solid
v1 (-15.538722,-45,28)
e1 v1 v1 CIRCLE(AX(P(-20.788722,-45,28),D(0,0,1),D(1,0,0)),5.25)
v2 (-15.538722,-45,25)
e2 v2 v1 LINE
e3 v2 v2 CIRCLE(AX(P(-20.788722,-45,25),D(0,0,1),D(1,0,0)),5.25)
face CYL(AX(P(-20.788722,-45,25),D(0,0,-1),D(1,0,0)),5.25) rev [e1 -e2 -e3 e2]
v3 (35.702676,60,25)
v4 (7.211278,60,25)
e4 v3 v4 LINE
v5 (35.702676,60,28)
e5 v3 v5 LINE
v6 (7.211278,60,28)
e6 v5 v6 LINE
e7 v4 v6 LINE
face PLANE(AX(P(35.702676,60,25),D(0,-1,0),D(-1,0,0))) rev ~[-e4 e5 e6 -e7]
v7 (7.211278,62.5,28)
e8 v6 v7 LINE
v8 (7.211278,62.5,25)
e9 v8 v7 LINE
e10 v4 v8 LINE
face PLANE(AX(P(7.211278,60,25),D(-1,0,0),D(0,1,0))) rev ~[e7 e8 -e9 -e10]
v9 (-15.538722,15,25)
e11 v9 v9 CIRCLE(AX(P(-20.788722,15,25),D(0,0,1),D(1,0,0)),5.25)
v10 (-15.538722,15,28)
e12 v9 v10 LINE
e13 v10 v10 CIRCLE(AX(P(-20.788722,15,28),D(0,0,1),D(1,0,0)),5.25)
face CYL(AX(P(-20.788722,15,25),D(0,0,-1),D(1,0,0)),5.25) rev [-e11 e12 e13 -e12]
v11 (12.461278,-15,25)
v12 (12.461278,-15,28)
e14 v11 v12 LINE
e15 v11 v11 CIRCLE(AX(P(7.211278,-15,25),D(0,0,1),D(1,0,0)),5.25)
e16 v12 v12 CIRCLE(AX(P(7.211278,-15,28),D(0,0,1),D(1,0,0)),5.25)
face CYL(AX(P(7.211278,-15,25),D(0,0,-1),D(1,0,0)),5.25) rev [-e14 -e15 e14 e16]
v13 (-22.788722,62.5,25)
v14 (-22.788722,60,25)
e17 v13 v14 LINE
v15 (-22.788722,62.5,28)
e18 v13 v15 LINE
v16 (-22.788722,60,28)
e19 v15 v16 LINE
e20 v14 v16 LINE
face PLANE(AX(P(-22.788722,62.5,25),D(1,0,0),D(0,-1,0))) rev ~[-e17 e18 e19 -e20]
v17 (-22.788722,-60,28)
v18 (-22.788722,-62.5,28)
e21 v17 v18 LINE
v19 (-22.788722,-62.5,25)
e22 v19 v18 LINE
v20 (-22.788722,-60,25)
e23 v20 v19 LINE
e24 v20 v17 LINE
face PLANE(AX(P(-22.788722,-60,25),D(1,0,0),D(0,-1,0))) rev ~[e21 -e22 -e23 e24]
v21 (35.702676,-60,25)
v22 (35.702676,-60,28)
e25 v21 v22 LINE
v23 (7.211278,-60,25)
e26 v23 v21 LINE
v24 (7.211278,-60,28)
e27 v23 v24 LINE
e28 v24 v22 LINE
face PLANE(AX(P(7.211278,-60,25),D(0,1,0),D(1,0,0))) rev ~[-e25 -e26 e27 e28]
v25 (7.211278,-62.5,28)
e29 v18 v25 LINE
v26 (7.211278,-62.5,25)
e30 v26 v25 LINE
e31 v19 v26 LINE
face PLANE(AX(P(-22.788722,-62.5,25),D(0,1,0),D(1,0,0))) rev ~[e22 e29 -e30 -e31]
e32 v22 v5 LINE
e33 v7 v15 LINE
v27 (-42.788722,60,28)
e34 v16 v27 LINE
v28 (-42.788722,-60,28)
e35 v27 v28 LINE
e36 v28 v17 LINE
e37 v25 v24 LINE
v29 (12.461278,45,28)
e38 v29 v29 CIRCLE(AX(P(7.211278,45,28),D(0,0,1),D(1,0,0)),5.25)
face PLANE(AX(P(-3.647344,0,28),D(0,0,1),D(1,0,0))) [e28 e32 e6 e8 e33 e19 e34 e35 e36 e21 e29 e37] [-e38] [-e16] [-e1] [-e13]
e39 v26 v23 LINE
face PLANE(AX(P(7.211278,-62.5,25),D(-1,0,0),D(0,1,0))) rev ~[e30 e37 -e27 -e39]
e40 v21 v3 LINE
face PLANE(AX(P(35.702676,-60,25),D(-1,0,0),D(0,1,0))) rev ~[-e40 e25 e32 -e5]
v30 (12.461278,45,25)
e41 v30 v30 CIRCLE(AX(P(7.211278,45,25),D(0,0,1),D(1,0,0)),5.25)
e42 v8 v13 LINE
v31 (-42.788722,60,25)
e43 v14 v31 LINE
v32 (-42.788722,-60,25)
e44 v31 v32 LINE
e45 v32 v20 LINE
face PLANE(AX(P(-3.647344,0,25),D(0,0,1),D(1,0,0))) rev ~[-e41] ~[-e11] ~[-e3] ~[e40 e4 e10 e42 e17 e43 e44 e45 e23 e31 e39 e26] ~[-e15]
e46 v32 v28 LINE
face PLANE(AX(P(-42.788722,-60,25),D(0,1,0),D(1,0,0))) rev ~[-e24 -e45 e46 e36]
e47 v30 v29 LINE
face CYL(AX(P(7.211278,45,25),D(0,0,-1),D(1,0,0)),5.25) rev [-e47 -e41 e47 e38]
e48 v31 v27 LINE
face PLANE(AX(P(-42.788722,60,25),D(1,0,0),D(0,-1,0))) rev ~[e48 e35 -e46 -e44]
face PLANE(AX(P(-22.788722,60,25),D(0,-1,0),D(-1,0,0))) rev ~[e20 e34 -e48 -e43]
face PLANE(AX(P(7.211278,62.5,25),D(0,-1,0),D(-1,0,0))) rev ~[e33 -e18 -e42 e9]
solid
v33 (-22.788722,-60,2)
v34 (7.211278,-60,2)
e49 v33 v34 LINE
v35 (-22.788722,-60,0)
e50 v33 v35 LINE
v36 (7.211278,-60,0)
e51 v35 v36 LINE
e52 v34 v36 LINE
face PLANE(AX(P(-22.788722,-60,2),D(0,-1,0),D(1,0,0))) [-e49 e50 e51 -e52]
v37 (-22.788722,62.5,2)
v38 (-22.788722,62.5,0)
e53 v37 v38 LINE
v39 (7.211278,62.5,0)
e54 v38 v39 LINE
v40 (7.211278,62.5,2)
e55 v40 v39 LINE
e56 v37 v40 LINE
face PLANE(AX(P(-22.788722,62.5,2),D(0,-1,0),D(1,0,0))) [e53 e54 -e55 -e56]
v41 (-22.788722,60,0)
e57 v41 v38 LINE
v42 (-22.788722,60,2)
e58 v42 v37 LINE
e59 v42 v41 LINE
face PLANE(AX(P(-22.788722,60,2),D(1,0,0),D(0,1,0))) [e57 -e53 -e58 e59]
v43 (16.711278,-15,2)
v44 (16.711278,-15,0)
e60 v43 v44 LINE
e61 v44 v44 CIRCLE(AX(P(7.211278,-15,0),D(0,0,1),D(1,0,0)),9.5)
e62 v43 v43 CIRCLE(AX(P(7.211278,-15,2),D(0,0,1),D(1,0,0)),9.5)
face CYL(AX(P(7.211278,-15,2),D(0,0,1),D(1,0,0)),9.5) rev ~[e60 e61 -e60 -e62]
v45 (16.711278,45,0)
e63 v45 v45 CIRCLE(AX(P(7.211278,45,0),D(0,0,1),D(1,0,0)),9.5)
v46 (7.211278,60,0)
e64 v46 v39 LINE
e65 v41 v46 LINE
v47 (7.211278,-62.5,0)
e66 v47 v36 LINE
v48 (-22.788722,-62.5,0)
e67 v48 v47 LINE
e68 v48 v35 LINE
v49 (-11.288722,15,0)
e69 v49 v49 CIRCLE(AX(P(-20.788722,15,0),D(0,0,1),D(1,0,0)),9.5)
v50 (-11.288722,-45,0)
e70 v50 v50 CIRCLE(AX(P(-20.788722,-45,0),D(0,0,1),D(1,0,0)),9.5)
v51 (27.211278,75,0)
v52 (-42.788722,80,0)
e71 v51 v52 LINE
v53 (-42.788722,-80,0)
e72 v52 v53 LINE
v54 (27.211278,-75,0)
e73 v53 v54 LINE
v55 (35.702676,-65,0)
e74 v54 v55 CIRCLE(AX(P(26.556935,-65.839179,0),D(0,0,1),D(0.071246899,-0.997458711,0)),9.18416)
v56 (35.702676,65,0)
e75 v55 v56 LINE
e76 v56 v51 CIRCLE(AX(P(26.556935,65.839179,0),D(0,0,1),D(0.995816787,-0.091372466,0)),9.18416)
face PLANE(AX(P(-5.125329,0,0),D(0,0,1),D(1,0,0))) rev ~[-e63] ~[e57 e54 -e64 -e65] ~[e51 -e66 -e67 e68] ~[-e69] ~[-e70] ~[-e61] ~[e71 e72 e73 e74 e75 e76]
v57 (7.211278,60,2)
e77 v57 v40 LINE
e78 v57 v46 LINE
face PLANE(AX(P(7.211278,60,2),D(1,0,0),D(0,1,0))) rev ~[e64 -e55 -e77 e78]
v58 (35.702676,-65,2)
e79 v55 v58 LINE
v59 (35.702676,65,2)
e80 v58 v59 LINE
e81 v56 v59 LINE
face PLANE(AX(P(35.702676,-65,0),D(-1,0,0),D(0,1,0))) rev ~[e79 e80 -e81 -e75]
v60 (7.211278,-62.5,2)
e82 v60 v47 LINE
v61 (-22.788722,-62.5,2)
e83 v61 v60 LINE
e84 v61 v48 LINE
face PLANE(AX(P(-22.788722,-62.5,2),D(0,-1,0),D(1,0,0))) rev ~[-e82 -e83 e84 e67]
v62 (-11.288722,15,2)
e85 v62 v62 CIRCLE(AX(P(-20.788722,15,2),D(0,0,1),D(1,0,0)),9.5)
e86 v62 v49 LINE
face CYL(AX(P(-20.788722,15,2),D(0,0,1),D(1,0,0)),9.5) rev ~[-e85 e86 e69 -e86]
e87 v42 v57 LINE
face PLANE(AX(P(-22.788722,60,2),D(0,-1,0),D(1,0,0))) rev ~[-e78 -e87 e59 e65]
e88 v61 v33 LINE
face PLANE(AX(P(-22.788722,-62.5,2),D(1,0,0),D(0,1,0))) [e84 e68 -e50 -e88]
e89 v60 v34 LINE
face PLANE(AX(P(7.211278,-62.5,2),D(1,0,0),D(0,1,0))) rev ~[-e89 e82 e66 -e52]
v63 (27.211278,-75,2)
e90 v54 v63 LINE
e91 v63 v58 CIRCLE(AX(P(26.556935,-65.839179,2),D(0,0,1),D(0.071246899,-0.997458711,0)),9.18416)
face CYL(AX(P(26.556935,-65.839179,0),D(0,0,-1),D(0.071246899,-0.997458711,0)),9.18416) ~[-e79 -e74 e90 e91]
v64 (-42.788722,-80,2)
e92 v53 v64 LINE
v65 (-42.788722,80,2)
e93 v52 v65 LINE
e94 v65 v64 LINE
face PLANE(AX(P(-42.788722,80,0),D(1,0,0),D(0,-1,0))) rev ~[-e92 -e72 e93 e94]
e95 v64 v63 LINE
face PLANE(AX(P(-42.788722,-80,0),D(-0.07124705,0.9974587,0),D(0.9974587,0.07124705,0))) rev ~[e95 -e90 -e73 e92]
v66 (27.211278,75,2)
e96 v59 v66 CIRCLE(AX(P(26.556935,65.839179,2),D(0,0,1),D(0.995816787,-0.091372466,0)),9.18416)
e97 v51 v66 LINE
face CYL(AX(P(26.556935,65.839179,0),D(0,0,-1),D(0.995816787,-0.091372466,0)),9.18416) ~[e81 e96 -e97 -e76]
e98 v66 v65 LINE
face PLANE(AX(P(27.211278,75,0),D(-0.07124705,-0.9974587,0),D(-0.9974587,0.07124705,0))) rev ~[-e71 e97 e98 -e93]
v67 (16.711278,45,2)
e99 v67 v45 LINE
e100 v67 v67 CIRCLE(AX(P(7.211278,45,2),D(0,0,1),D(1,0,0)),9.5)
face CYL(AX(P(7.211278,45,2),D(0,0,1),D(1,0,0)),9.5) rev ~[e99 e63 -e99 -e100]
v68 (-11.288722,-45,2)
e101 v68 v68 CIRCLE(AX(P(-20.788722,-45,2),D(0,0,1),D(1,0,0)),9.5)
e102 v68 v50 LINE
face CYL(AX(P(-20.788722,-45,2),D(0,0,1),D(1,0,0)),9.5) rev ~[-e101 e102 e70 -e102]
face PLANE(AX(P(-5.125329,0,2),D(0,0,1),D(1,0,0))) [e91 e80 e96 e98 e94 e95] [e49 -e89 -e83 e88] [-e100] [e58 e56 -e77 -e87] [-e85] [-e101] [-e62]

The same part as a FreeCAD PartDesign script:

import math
import FreeCAD as App
import Part
import Sketcher
from FreeCAD import Vector


def add_polygon(sketch, points):
    """Adds a closed chain of lines whose ends are joined by coincident constraints."""
    first, n = sketch.GeometryCount, len(points)
    for a, b in zip(points, points[1:] + points[:1]):
        sketch.addGeometry(Part.LineSegment(App.Vector(*a, 0), App.Vector(*b, 0)), False)
    for i in range(n):
        sketch.addConstraint(Sketcher.Constraint("Coincident", first + i, 2, first + (i + 1) % n, 1))

doc = App.newDocument("Part")
body = doc.addObject("PartDesign::Body", "Body")

sketch1 = doc.addObject("Sketcher::SketchObject", "Sketch")
body.addObject(sketch1)
sketch1.AttachmentSupport = (doc.XY_Plane, [""])
sketch1.MapMode = "FlatFace"
sketch1.addGeometry([
    Part.LineSegment(Vector(27.211278, 75, 0), Vector(-42.788722, 80, 0)),
    Part.LineSegment(Vector(-42.788722, 80, 0), Vector(-42.788722, -80, 0)),
    Part.LineSegment(Vector(-42.788722, -80, 0), Vector(27.211278, -75, 0)),
    Part.ArcOfCircle(Part.Circle(Vector(26.556935, -65.839179, 0), Vector(0, 0, 1), 9.18416), math.radians(-85.914392), math.radians(5.242569)),
    Part.LineSegment(Vector(35.702676, -65, 0), Vector(35.702676, 65, 0)),
    Part.ArcOfCircle(Part.Circle(Vector(26.556935, 65.839179, 0), Vector(0, 0, 1), 9.18416), math.radians(-5.242569), math.radians(85.914392)),
], False)
sketch1.addConstraint([
    Sketcher.Constraint("Coincident", 0, 2, 1, 1),
    Sketcher.Constraint("Coincident", 1, 2, 2, 1),
    Sketcher.Constraint("Tangent", 2, 2, 3, 1),
    Sketcher.Constraint("Coincident", 3, 2, 4, 1),
    Sketcher.Constraint("Coincident", 4, 2, 5, 1),
    Sketcher.Constraint("Tangent", 5, 2, 0, 1),
    Sketcher.Constraint("Vertical", 1),
    Sketcher.Constraint("Vertical", 4),
    Sketcher.Constraint("Equal", 3, 5),
    Sketcher.Constraint("Symmetric", 3, 3, 5, 3, -1),
    Sketcher.Constraint("Vertical", 2, 2, 5, 2),
    Sketcher.Constraint("DistanceY", 1, 2, 1, 1, 160.0),
    Sketcher.Constraint("DistanceY", 4, 1, 4, 2, 130.0),
    Sketcher.Constraint("DistanceY", 2, 2, -1, 1, 75.0),
    Sketcher.Constraint("DistanceX", 1, 2, 2, 2, 70.0),
    Sketcher.Constraint("Radius", 3, 9.18416),
    Sketcher.Constraint("DistanceX", -1, 1, 2, 2, 27.211278),
])
pad1 = doc.addObject("PartDesign::Pad", "Pad")
body.addObject(pad1)
pad1.Profile = sketch1
pad1.Length = 2

sketch2 = doc.addObject("Sketcher::SketchObject", "Sketch001")
body.addObject(sketch2)
sketch2.AttachmentSupport = (doc.XY_Plane, [""])
sketch2.MapMode = "FlatFace"
sketch2.AttachmentOffset = App.Placement(Vector(0, 0, 2), App.Rotation())
sketch2.addGeometry([
    Part.Circle(Vector(7.211278, 45, 0), Vector(0, 0, 1), 9.5),
    Part.Circle(Vector(-20.788722, 15, 0), Vector(0, 0, 1), 9.5),
    Part.Circle(Vector(7.211278, -15, 0), Vector(0, 0, 1), 9.5),
    Part.Circle(Vector(-20.788722, -45, 0), Vector(0, 0, 1), 9.5),
], False)
sketch2.addConstraint([
    Sketcher.Constraint("Equal", 0, 1),
    Sketcher.Constraint("Equal", 1, 2),
    Sketcher.Constraint("Equal", 2, 3),
    Sketcher.Constraint("Vertical", 0, 3, 2, 3),
    Sketcher.Constraint("Vertical", 1, 3, 3, 3),
    Sketcher.Constraint("Diameter", 0, 19.0),
    Sketcher.Constraint("DistanceY", -1, 1, 0, 3, 45.0),
    Sketcher.Constraint("DistanceY", -1, 1, 1, 3, 15.0),
    Sketcher.Constraint("DistanceY", 2, 3, -1, 1, 15.0),
    Sketcher.Constraint("DistanceY", 3, 3, -1, 1, 45.0),
    Sketcher.Constraint("DistanceX", 1, 3, 0, 3, 28.0),
    Sketcher.Constraint("DistanceX", 1, 3, -1, 1, 20.788722),
])
pocket1 = doc.addObject("PartDesign::Pocket", "Pocket")
body.addObject(pocket1)
pocket1.Profile = sketch2
pocket1.Type = "ThroughAll"

sketch3 = doc.addObject("Sketcher::SketchObject", "Sketch002")
body.addObject(sketch3)
sketch3.AttachmentSupport = (doc.XY_Plane, [""])
sketch3.MapMode = "FlatFace"
sketch3.AttachmentOffset = App.Placement(Vector(0, 0, 2), App.Rotation())
add_polygon(sketch3, [(-22.788722, 62.5), (-22.788722, 60), (7.211278, 60), (7.211278, 62.5)])
add_polygon(sketch3, [(-22.788722, -60), (-22.788722, -62.5), (7.211278, -62.5), (7.211278, -60)])
sketch3.addConstraint([
    Sketcher.Constraint("Vertical", 0),
    Sketcher.Constraint("Horizontal", 1),
    Sketcher.Constraint("Vertical", 2),
    Sketcher.Constraint("Horizontal", 3),
    Sketcher.Constraint("Vertical", 4),
    Sketcher.Constraint("Horizontal", 5),
    Sketcher.Constraint("Vertical", 6),
    Sketcher.Constraint("Horizontal", 7),
    Sketcher.Constraint("Symmetric", 3, 2, 4, 2, -1),
    Sketcher.Constraint("Symmetric", 1, 2, 6, 2, -1),
    Sketcher.Constraint("DistanceX", 1, 1, 1, 2, 30.0),
    Sketcher.Constraint("DistanceY", 0, 2, 0, 1, 2.5),
    Sketcher.Constraint("DistanceY", -1, 1, 0, 2, 60.0),
    Sketcher.Constraint("DistanceX", 0, 2, -1, 1, 22.788722),
])
pocket2 = doc.addObject("PartDesign::Pocket", "Pocket001")
body.addObject(pocket2)
pocket2.Profile = sketch3
pocket2.Type = "ThroughAll"
body2 = doc.addObject("PartDesign::Body", "Body001")

sketch4 = doc.addObject("Sketcher::SketchObject", "Sketch003")
body2.addObject(sketch4)
sketch4.AttachmentSupport = (doc.getObject("XY_Plane001"), [""])
sketch4.MapMode = "FlatFace"
sketch4.AttachmentOffset = App.Placement(Vector(0, 0, 25), App.Rotation())
add_polygon(sketch4, [(-22.788722, 60), (-42.788722, 60), (-42.788722, -60), (-22.788722, -60), (-22.788722, -62.5), (7.211278, -62.5), (7.211278, -60), (35.702676, -60), (35.702676, 60), (7.211278, 60), (7.211278, 62.5), (-22.788722, 62.5)])
sketch4.addGeometry(Part.Circle(Vector(-20.788722, -45, 0), Vector(0, 0, 1), 5.25), False)
sketch4.addGeometry(Part.Circle(Vector(7.211278, -15, 0), Vector(0, 0, 1), 5.25), False)
sketch4.addGeometry(Part.Circle(Vector(-20.788722, 15, 0), Vector(0, 0, 1), 5.25), False)
sketch4.addGeometry(Part.Circle(Vector(7.211278, 45, 0), Vector(0, 0, 1), 5.25), False)
sketch4.addConstraint([
    Sketcher.Constraint("Horizontal", 0),
    Sketcher.Constraint("Vertical", 1),
    Sketcher.Constraint("Horizontal", 2),
    Sketcher.Constraint("Vertical", 3),
    Sketcher.Constraint("Horizontal", 4),
    Sketcher.Constraint("Vertical", 5),
    Sketcher.Constraint("Horizontal", 6),
    Sketcher.Constraint("Vertical", 7),
    Sketcher.Constraint("Horizontal", 8),
    Sketcher.Constraint("Vertical", 9),
    Sketcher.Constraint("Horizontal", 10),
    Sketcher.Constraint("Vertical", 11),
    Sketcher.Constraint("Equal", 12, 13),
    Sketcher.Constraint("Equal", 13, 14),
    Sketcher.Constraint("Equal", 14, 15),
    Sketcher.Constraint("Symmetric", 5, 2, 8, 2, -1),
    Sketcher.Constraint("Symmetric", 3, 2, 10, 2, -1),
    Sketcher.Constraint("Horizontal", 2, 2, 5, 2),
    Sketcher.Constraint("Horizontal", 0, 2, 7, 2),
    Sketcher.Constraint("Vertical", 12, 3, 14, 3),
    Sketcher.Constraint("Vertical", 13, 3, 15, 3),
    Sketcher.Constraint("Vertical", 15, 3, 4, 2),
    Sketcher.Constraint("Diameter", 12, 10.5),
    Sketcher.Constraint("DistanceX", 0, 2, 0, 1, 20.0),
    Sketcher.Constraint("DistanceX", 4, 1, 4, 2, 30.0),
    Sketcher.Constraint("DistanceY", 1, 2, 1, 1, 120.0),
    Sketcher.Constraint("DistanceY", 3, 2, 3, 1, 2.5),
    Sketcher.Constraint("DistanceY", 12, 3, -1, 1, 45.0),
    Sketcher.Constraint("DistanceY", 13, 3, -1, 1, 15.0),
    Sketcher.Constraint("DistanceY", -1, 1, 14, 3, 15.0),
    Sketcher.Constraint("DistanceY", -1, 1, 15, 3, 45.0),
    Sketcher.Constraint("DistanceX", 12, 3, 13, 3, 28.0),
    Sketcher.Constraint("DistanceX", 0, 2, 7, 2, 78.491398),
    Sketcher.Constraint("DistanceX", 12, 3, -1, 1, 20.788722),
])
pad2 = doc.addObject("PartDesign::Pad", "Pad001")
body2.addObject(pad2)
pad2.Profile = sketch4
pad2.Length = 3

doc.recompute()
